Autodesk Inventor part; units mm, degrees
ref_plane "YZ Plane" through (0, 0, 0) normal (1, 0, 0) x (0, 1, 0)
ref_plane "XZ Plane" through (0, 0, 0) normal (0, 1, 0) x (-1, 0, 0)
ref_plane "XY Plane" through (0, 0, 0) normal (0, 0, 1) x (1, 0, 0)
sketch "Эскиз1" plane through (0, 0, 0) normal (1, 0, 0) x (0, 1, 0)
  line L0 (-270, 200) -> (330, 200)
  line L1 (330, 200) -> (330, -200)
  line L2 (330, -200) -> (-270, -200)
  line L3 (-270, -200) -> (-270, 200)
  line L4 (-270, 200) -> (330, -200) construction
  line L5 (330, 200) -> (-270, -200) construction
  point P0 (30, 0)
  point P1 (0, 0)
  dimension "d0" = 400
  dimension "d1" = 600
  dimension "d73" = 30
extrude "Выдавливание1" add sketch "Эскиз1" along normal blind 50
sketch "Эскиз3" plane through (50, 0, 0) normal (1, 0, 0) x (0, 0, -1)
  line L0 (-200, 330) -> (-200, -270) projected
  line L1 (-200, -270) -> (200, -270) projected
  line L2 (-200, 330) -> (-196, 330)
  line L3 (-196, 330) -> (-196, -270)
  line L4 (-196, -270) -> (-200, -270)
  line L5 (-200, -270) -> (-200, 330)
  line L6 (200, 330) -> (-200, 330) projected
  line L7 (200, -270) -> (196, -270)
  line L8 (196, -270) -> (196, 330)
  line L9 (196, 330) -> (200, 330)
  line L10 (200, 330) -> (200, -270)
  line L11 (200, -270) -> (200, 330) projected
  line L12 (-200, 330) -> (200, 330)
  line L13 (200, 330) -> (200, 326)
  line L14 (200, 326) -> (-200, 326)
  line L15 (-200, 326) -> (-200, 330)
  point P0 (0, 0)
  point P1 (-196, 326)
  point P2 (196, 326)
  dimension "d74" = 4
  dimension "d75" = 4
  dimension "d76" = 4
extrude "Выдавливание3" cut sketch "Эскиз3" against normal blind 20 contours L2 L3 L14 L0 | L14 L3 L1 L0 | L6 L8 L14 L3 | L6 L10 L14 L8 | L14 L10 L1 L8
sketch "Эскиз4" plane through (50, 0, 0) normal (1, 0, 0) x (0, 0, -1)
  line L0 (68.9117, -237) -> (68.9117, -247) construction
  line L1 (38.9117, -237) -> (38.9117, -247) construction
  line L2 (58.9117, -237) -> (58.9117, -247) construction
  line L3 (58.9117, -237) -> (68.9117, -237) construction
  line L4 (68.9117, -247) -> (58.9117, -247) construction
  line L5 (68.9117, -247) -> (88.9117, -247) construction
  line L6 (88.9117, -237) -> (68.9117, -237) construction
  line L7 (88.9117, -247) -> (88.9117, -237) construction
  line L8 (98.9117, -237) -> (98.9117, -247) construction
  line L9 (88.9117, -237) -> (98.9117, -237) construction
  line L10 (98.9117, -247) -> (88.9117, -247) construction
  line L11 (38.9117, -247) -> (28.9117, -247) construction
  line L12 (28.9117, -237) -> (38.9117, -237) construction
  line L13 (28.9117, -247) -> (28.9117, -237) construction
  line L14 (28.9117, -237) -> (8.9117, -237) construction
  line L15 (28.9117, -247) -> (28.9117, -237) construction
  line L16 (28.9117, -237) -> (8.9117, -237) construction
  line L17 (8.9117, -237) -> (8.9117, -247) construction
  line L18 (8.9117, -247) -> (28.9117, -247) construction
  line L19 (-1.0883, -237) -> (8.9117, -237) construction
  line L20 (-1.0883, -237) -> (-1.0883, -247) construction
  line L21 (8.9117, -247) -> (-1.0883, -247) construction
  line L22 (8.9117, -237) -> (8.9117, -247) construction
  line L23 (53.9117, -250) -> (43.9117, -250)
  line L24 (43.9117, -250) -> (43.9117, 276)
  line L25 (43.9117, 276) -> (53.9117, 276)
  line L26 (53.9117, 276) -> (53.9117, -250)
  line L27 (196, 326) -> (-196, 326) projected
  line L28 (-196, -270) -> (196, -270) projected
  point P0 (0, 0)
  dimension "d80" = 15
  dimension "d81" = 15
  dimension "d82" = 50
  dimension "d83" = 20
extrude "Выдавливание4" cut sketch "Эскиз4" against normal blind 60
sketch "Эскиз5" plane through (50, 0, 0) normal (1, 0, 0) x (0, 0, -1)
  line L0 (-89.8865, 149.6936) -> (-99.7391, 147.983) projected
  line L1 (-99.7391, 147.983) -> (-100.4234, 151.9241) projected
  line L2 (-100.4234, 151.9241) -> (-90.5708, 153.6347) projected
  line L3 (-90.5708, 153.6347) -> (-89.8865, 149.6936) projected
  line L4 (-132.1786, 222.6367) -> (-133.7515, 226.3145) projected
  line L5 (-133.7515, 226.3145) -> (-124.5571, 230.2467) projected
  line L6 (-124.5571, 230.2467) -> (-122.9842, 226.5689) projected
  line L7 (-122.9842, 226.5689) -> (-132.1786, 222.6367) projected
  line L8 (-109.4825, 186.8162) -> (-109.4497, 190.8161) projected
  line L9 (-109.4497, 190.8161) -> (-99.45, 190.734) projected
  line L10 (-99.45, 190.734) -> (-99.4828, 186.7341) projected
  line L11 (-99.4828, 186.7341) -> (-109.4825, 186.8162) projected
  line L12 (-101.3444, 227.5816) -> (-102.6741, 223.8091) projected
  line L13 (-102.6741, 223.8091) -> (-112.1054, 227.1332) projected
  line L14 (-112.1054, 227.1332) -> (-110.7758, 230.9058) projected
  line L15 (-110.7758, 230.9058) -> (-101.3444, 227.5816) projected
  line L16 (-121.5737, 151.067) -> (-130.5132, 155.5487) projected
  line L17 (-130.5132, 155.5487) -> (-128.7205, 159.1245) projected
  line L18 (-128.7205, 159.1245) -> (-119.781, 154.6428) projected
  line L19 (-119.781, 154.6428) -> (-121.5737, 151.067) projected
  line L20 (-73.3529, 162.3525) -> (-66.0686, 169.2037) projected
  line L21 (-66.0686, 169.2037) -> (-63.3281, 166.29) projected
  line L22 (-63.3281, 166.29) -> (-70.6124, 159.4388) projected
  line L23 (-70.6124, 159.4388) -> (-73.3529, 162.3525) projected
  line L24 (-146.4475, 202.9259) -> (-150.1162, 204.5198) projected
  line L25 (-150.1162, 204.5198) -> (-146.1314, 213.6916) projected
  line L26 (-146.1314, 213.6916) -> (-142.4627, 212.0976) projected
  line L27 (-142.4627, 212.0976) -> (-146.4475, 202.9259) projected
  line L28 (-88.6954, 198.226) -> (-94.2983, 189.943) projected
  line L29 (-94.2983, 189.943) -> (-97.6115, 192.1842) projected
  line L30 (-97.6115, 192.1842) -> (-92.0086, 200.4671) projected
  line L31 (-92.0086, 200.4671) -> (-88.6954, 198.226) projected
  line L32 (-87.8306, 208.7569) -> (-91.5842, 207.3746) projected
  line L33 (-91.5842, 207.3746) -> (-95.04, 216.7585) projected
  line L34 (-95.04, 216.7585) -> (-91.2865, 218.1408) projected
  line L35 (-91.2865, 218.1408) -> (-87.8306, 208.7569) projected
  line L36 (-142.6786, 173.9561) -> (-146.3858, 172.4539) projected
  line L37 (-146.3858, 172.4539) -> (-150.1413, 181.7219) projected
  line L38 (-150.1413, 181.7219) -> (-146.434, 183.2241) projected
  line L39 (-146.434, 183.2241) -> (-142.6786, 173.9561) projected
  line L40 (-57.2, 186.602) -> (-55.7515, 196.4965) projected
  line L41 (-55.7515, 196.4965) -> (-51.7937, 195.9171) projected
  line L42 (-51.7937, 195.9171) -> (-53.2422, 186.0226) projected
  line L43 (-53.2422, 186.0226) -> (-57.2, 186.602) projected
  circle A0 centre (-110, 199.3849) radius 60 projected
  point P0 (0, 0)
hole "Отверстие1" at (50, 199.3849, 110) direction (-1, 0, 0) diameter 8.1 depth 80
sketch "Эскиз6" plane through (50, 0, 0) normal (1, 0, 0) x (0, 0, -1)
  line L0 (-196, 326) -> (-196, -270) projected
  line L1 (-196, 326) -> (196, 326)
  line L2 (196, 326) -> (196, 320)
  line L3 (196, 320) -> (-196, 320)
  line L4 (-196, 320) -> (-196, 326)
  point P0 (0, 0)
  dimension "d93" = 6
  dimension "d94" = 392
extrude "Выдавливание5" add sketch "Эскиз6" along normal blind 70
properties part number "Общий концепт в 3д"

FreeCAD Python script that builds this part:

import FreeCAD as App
import Part
import Sketcher

V = App.Vector
Q = App.Units.Quantity


def add_polygon(sketch, points):
    """Adds a closed chain of lines whose ends are joined by coincident constraints."""
    first, n = sketch.GeometryCount, len(points)
    for a, b in zip(points, points[1:] + points[:1]):
        sketch.addGeometry(Part.LineSegment(App.Vector(*a, 0), App.Vector(*b, 0)), False)
    for i in range(n):
        sketch.addConstraint(Sketcher.Constraint("Coincident", first + i, 2, first + (i + 1) % n, 1))

doc = App.newDocument("Part")
params = doc.addObject("Spreadsheet::Sheet", "Params")
for row, (alias, value) in enumerate([
    ("sketch1_width", "600 mm"),
    ("sketch1_height", "400 mm"),
    ("pad1_length", "50 mm"),
    ("sketch2_height", "4 mm"),
    ("sketch2_width", "600 mm"),
    ("sketch2_height2", "392 mm"),
    ("pocket1_length", "20 mm"),
    ("sketch3_width", "526 mm"),
    ("sketch3_height", "10 mm"),
    ("pocket2_length", "60 mm"),
    ("sketch4_diameter", "8.1 mm"),
    ("hole_diameter", "8.1 mm"),
    ("hole_depth", "80 mm"),
    ("sketch5_width", "6 mm"),
    ("sketch5_height", "392 mm"),
    ("pad2_length", "70 mm"),
], start=1):
    params.set(f"A{row}", alias)
    params.set(f"B{row}", "=" + value)
    params.setAlias(f"B{row}", alias)

body = doc.addObject("PartDesign::Body", "Body")

# Sketch on YZ plane
sketch1 = body.newObject("Sketcher::SketchObject", "Sketch")
sketch1.AttachmentSupport = (doc.getObject("YZ_Plane"), [""])
sketch1.MapMode = "FlatFace"
add_polygon(sketch1, [(330, 200), (-270, 200), (-270, -200), (330, -200)])  # lines 0-3
sketch1.addConstraint([
    Sketcher.Constraint("Horizontal", 0),
    Sketcher.Constraint("Vertical", 1),
    Sketcher.Constraint("Horizontal", 2),
    Sketcher.Constraint("Vertical", 3),
    Sketcher.Constraint("DistanceX", 0, 2, 0, 1, Q("600 mm")),
    Sketcher.Constraint("DistanceY", 1, 2, 1, 1, Q("400 mm")),
    Sketcher.Constraint("DistanceX", 0, 2, -1, 1, Q("270 mm")),
    Sketcher.Constraint("DistanceY", -1, 1, 0, 2, Q("200 mm")),
])
sketch1.setExpression("Constraints[8]", "Params.sketch1_width")
sketch1.setExpression("Constraints[9]", "Params.sketch1_height")
pad1 = body.newObject("PartDesign::Pad", "Pad")
pad1.Profile = sketch1
pad1.setExpression("Length", "Params.pad1_length")

# Sketch on YZ plane
sketch2 = body.newObject("Sketcher::SketchObject", "Sketch001")
sketch2.AttachmentSupport = (doc.getObject("YZ_Plane"), [""])
sketch2.MapMode = "FlatFace"
sketch2.AttachmentOffset = App.Placement(V(0, 0, 50), App.Rotation())
add_polygon(sketch2, [(330, 200), (-270, 200), (-270, 196), (326, 196), (326, -196), (-270, -196), (-270, -200), (330, -200)])  # lines 0-7
sketch2.addConstraint([
    Sketcher.Constraint("Horizontal", 0),
    Sketcher.Constraint("Vertical", 1),
    Sketcher.Constraint("Horizontal", 2),
    Sketcher.Constraint("Vertical", 3),
    Sketcher.Constraint("Horizontal", 4),
    Sketcher.Constraint("Vertical", 5),
    Sketcher.Constraint("Horizontal", 6),
    Sketcher.Constraint("Vertical", 7),
    Sketcher.Constraint("Symmetric", 1, 2, 4, 2, -1),
    Sketcher.Constraint("Equal", 1, 5),
    Sketcher.Constraint("DistanceY", 1, 2, 1, 1, Q("4 mm")),
    Sketcher.Constraint("DistanceX", 3, 2, 6, 2, Q("4 mm")),
    Sketcher.Constraint("DistanceX", 0, 2, 0, 1, Q("600 mm")),
    Sketcher.Constraint("DistanceY", 3, 2, 3, 1, Q("392 mm")),
    Sketcher.Constraint("DistanceX", 0, 2, -1, 1, Q("270 mm")),
])
sketch2.setExpression("Constraints[18]", "Params.sketch2_height")
sketch2.setExpression("Constraints[20]", "Params.sketch2_width")
sketch2.setExpression("Constraints[21]", "Params.sketch2_height2")
pocket1 = body.newObject("PartDesign::Pocket", "Pocket")
pocket1.Profile = sketch2
pocket1.setExpression("Length", "Params.pocket1_length")

# Sketch on YZ plane
sketch3 = body.newObject("Sketcher::SketchObject", "Sketch002")
sketch3.AttachmentSupport = (doc.getObject("YZ_Plane"), [""])
sketch3.MapMode = "FlatFace"
sketch3.AttachmentOffset = App.Placement(V(0, 0, 50), App.Rotation())
add_polygon(sketch3, [(-250, -44), (-250, -54), (276, -54), (276, -44)])  # lines 0-3
sketch3.addConstraint([
    Sketcher.Constraint("Vertical", 0),
    Sketcher.Constraint("Horizontal", 1),
    Sketcher.Constraint("Vertical", 2),
    Sketcher.Constraint("Horizontal", 3),
    Sketcher.Constraint("DistanceX", 1, 1, 1, 2, Q("526 mm")),
    Sketcher.Constraint("DistanceY", 0, 2, 0, 1, Q("10 mm")),
    Sketcher.Constraint("DistanceX", 0, 2, -1, 1, Q("250 mm")),
    Sketcher.Constraint("DistanceY", 0, 2, -1, 1, Q("53.9117 mm")),
])
sketch3.setExpression("Constraints[8]", "Params.sketch3_width")
sketch3.setExpression("Constraints[9]", "Params.sketch3_height")
pocket2 = body.newObject("PartDesign::Pocket", "Pocket001")
pocket2.Profile = sketch3
pocket2.setExpression("Length", "Params.pocket2_length")

# Sketch on YZ plane
sketch4 = body.newObject("Sketcher::SketchObject", "Sketch003")
sketch4.AttachmentSupport = (doc.getObject("YZ_Plane"), [""])
sketch4.MapMode = "FlatFace"
sketch4.AttachmentOffset = App.Placement(V(0, 0, 50), App.Rotation())
sketch4.addGeometry(Part.Circle(V(199.4, 110, 0), V(0, 0, 1), 4), False)
sketch4.addConstraint([
    Sketcher.Constraint("Diameter", 0, Q("8.1 mm")),
    Sketcher.Constraint("DistanceY", -1, 1, 0, 3, Q("110 mm")),
    Sketcher.Constraint("DistanceX", -1, 1, 0, 3, Q("199.385 mm")),
])
sketch4.setExpression("Constraints[0]", "Params.sketch4_diameter")
doc.recompute()
hole = body.newObject("PartDesign::Hole", "Hole")
hole.Profile = sketch4
hole.ThreadType = "None"
hole.setExpression("Diameter", "Params.hole_diameter")
hole.DepthType = "Dimension"
hole.setExpression("Depth", "Params.hole_depth")
hole.DrillPoint = "Flat"

# Sketch on YZ plane
sketch5 = body.newObject("Sketcher::SketchObject", "Sketch004")
sketch5.AttachmentSupport = (doc.getObject("YZ_Plane"), [""])
sketch5.MapMode = "FlatFace"
sketch5.AttachmentOffset = App.Placement(V(0, 0, 50), App.Rotation())
add_polygon(sketch5, [(326, -196), (326, 196), (320, 196), (320, -196)])  # lines 0-3
sketch5.addConstraint([
    Sketcher.Constraint("Vertical", 0),
    Sketcher.Constraint("Horizontal", 1),
    Sketcher.Constraint("Vertical", 2),
    Sketcher.Constraint("Horizontal", 3),
    Sketcher.Constraint("DistanceX", 1, 2, 1, 1, Q("6 mm")),
    Sketcher.Constraint("DistanceY", 0, 1, 0, 2, Q("392 mm")),
    Sketcher.Constraint("DistanceX", -1, 1, 0, 2, Q("326 mm")),
    Sketcher.Constraint("DistanceY", -1, 1, 0, 2, Q("196 mm")),
])
sketch5.setExpression("Constraints[8]", "Params.sketch5_width")
sketch5.setExpression("Constraints[9]", "Params.sketch5_height")
pad2 = body.newObject("PartDesign::Pad", "Pad001")
pad2.Profile = sketch5
pad2.setExpression("Length", "Params.pad2_length")

doc.recompute()
